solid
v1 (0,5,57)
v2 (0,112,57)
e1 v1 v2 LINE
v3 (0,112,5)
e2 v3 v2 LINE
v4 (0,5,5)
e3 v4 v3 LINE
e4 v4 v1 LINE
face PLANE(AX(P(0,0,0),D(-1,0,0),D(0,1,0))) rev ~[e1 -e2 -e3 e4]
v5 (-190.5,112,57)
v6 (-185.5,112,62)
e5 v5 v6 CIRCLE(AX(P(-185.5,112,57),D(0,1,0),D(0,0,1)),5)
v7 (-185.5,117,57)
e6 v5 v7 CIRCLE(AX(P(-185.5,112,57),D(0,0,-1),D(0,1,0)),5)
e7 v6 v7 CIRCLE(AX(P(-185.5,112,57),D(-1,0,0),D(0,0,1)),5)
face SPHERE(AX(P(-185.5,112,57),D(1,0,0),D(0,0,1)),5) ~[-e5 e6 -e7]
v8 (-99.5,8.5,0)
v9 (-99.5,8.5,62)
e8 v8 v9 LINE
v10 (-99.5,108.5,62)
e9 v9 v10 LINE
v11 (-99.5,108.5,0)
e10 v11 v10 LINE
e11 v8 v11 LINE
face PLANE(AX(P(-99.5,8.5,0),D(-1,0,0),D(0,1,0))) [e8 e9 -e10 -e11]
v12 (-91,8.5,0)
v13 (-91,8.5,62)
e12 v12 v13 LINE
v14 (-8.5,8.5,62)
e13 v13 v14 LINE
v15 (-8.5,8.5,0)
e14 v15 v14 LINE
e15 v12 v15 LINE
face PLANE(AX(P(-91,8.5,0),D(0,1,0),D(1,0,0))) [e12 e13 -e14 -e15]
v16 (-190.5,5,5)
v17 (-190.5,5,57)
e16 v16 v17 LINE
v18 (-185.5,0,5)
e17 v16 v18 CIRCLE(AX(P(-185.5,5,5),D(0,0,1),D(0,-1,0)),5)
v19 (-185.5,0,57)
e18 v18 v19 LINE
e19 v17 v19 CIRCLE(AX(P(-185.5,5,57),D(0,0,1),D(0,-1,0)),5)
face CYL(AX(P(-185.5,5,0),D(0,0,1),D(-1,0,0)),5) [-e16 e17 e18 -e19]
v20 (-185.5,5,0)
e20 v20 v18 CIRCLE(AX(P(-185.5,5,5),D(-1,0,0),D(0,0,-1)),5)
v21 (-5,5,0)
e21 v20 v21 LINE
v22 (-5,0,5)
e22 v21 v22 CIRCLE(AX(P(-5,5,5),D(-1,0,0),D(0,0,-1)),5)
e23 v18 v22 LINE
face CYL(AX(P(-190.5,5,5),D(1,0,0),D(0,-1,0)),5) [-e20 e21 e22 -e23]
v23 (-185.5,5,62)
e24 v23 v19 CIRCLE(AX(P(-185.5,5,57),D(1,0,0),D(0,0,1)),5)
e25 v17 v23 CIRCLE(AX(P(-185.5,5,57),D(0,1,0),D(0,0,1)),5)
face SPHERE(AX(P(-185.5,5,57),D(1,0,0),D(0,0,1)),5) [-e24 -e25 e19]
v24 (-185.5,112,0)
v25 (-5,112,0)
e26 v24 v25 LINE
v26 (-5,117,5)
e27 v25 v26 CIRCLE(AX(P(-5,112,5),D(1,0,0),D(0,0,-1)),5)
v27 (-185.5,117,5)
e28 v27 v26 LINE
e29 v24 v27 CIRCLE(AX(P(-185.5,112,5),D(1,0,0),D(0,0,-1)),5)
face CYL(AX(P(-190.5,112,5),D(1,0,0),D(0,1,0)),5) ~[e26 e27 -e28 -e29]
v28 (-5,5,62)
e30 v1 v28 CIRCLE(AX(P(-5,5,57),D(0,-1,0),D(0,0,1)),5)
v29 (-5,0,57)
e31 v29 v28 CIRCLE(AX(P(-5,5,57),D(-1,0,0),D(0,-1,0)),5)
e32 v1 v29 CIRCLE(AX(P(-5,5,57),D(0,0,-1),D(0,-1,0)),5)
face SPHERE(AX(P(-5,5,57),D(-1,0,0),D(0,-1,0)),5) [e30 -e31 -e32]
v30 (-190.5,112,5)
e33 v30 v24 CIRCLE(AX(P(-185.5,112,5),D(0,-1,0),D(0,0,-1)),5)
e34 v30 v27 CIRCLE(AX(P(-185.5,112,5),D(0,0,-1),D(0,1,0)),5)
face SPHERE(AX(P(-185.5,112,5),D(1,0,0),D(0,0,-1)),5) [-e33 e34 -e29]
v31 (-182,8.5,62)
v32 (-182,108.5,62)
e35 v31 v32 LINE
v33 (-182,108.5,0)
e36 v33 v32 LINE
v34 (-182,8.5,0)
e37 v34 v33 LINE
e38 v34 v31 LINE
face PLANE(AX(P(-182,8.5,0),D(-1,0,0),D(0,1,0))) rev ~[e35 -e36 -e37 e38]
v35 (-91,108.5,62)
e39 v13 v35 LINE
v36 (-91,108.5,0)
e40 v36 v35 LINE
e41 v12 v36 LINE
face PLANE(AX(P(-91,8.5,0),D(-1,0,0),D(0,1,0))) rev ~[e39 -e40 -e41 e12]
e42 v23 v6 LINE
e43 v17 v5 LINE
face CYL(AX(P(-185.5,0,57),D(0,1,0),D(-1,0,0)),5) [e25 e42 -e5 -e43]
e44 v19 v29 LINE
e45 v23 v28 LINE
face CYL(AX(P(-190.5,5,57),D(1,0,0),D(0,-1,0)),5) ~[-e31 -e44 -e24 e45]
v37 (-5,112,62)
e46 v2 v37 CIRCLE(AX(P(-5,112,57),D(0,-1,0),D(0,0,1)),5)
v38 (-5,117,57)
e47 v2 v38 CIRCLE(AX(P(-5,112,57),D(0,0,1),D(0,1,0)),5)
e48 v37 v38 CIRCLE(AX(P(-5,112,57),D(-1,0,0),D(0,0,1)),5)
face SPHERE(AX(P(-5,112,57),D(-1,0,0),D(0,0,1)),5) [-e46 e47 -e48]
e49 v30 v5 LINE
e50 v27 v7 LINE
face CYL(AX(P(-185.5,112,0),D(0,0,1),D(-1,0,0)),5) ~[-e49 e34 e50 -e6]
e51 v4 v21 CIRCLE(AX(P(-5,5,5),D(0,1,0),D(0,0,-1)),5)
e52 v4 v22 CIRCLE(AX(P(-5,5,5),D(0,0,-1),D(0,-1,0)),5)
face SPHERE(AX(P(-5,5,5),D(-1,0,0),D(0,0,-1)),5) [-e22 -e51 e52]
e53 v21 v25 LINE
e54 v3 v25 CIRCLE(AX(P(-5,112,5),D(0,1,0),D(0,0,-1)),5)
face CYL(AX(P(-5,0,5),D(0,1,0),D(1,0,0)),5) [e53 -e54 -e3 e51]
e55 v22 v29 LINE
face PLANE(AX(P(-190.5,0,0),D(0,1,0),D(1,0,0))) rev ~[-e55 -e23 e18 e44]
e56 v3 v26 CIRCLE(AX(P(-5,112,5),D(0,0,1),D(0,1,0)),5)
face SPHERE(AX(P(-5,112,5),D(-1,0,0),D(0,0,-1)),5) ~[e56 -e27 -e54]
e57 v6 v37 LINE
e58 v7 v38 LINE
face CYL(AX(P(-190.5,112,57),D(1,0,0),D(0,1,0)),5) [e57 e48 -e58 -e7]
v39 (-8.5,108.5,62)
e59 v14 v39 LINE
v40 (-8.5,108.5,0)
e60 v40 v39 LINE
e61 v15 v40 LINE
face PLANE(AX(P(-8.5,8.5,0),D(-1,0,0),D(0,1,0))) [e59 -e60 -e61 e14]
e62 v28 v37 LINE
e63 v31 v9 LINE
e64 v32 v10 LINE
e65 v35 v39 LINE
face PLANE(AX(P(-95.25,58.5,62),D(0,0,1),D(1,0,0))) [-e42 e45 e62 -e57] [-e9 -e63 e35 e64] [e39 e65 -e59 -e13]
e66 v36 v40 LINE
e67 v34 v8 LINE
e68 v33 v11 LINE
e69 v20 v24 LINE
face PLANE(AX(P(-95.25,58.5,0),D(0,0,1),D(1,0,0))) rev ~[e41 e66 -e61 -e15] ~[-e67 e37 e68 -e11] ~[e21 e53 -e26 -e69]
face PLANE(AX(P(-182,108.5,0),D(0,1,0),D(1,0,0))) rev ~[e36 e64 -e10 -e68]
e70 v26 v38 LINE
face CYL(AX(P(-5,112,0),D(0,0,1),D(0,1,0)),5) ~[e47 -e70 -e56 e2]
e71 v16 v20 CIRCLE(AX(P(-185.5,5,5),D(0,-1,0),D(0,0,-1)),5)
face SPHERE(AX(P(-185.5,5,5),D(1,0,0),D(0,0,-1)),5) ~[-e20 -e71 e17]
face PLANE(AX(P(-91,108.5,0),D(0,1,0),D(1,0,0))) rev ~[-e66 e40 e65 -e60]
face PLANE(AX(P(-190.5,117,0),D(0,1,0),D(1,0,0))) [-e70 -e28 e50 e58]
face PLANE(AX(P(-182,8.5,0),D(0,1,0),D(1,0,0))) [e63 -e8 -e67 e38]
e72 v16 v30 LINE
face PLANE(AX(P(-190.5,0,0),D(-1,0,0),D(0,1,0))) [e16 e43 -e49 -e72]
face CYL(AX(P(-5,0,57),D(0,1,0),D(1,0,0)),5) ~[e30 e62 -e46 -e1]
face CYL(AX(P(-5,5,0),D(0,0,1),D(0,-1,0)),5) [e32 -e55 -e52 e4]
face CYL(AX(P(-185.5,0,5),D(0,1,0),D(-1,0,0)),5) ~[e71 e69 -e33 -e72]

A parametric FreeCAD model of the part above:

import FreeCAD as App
import Part
import Sketcher

V = App.Vector


def edges_at(feature, points):
    """Names of the edges that pass closest to the given points."""
    edges = feature.Shape.Edges
    near = lambda p: min(range(len(edges)), key=lambda i: edges[i].distToShape(Part.Vertex(*p))[0])
    return sorted({f"Edge{near(p) + 1}" for p in points})


def add_polygon(sketch, points):
    """Adds a closed chain of lines whose ends are joined by coincident constraints."""
    first, n = sketch.GeometryCount, len(points)
    for a, b in zip(points, points[1:] + points[:1]):
        sketch.addGeometry(Part.LineSegment(App.Vector(*a, 0), App.Vector(*b, 0)), False)
    for i in range(n):
        sketch.addConstraint(Sketcher.Constraint("Coincident", first + i, 2, first + (i + 1) % n, 1))

doc = App.newDocument("Part")
params = doc.addObject("Spreadsheet::Sheet", "Params")
for row, (alias, value) in enumerate([
    ("sketch1_height", "117 mm"),
    ("sketch1_height2", "100 mm"),
    ("sketch1_width", "190.5 mm"),
    ("sketch1_width2", "82.5 mm"),
    ("pad1_length", "62 mm"),
    ("fillet_radius", "5 mm"),
], start=1):
    params.set(f"A{row}", alias)
    params.set(f"B{row}", "=" + value)
    params.setAlias(f"B{row}", alias)

body = doc.addObject("PartDesign::Body", "Body")

sketch1 = body.newObject("Sketcher::SketchObject", "Sketch")
sketch1.AttachmentSupport = (doc.getObject("XY_Plane"), [""])
sketch1.MapMode = "FlatFace"
add_polygon(sketch1, [(-190.5, 117), (-190.5, 0), (0, 0), (0, 117)])
add_polygon(sketch1, [(-99.5, 8.5), (-182, 8.5), (-182, 108.5), (-99.5, 108.5)])
add_polygon(sketch1, [(-8.5, 8.5), (-91, 8.5), (-91, 108.5), (-8.5, 108.5)])
sketch1.addConstraint([
    Sketcher.Constraint("Vertical", 0),
    Sketcher.Constraint("Horizontal", 1),
    Sketcher.Constraint("Vertical", 2),
    Sketcher.Constraint("Horizontal", 3),
    Sketcher.Constraint("Horizontal", 4),
    Sketcher.Constraint("Vertical", 5),
    Sketcher.Constraint("Horizontal", 6),
    Sketcher.Constraint("Vertical", 7),
    Sketcher.Constraint("Horizontal", 8),
    Sketcher.Constraint("Vertical", 9),
    Sketcher.Constraint("Horizontal", 10),
    Sketcher.Constraint("Vertical", 11),
    Sketcher.Constraint("Coincident", 1, 2, -1, 1),
    Sketcher.Constraint("Horizontal", 7, 2, 8, 2),
    Sketcher.Constraint("Horizontal", 6, 2, 9, 2),
    Sketcher.Constraint("Equal", 6, 8),
    Sketcher.Constraint("DistanceY", 0, 2, 0, 1, 117.0),
    Sketcher.Constraint("DistanceY", 5, 1, 5, 2, 100.0),
    Sketcher.Constraint("DistanceX", 1, 1, 1, 2, 190.5),
    Sketcher.Constraint("DistanceX", 4, 2, 4, 1, 82.5),
    Sketcher.Constraint("DistanceX", 4, 2, -1, 1, 182.0),
    Sketcher.Constraint("DistanceX", 8, 2, -1, 1, 91.0),
    Sketcher.Constraint("DistanceY", -1, 1, 4, 2, 8.5),
])
sketch1.setExpression("Constraints[28]", "Params.sketch1_height")
sketch1.setExpression("Constraints[29]", "Params.sketch1_height2")
sketch1.setExpression("Constraints[30]", "Params.sketch1_width")
sketch1.setExpression("Constraints[31]", "Params.sketch1_width2")
pad1 = body.newObject("PartDesign::Pad", "Pad")
pad1.Profile = sketch1
pad1.setExpression("Length", "Params.pad1_length")
doc.recompute()

fillet = body.newObject("PartDesign::Fillet", "Fillet")
fillet.Base = (pad1, edges_at(pad1, [
    (-95.25, 117, 62),
    (-95.25, 117, 0),
    (-95.25, 0, 62),
    (-95.25, 0, 0),
    (-190.5, 58.5, 0),
    (-190.5, 58.5, 62),
    (0, 58.5, 0),
    (0, 0, 31),
    (0, 58.5, 62),
    (0, 117, 31),
    (-190.5, 117, 31),
    (-190.5, 0, 31),
]))
fillet.setExpression("Radius", "Params.fillet_radius")

doc.recompute()
